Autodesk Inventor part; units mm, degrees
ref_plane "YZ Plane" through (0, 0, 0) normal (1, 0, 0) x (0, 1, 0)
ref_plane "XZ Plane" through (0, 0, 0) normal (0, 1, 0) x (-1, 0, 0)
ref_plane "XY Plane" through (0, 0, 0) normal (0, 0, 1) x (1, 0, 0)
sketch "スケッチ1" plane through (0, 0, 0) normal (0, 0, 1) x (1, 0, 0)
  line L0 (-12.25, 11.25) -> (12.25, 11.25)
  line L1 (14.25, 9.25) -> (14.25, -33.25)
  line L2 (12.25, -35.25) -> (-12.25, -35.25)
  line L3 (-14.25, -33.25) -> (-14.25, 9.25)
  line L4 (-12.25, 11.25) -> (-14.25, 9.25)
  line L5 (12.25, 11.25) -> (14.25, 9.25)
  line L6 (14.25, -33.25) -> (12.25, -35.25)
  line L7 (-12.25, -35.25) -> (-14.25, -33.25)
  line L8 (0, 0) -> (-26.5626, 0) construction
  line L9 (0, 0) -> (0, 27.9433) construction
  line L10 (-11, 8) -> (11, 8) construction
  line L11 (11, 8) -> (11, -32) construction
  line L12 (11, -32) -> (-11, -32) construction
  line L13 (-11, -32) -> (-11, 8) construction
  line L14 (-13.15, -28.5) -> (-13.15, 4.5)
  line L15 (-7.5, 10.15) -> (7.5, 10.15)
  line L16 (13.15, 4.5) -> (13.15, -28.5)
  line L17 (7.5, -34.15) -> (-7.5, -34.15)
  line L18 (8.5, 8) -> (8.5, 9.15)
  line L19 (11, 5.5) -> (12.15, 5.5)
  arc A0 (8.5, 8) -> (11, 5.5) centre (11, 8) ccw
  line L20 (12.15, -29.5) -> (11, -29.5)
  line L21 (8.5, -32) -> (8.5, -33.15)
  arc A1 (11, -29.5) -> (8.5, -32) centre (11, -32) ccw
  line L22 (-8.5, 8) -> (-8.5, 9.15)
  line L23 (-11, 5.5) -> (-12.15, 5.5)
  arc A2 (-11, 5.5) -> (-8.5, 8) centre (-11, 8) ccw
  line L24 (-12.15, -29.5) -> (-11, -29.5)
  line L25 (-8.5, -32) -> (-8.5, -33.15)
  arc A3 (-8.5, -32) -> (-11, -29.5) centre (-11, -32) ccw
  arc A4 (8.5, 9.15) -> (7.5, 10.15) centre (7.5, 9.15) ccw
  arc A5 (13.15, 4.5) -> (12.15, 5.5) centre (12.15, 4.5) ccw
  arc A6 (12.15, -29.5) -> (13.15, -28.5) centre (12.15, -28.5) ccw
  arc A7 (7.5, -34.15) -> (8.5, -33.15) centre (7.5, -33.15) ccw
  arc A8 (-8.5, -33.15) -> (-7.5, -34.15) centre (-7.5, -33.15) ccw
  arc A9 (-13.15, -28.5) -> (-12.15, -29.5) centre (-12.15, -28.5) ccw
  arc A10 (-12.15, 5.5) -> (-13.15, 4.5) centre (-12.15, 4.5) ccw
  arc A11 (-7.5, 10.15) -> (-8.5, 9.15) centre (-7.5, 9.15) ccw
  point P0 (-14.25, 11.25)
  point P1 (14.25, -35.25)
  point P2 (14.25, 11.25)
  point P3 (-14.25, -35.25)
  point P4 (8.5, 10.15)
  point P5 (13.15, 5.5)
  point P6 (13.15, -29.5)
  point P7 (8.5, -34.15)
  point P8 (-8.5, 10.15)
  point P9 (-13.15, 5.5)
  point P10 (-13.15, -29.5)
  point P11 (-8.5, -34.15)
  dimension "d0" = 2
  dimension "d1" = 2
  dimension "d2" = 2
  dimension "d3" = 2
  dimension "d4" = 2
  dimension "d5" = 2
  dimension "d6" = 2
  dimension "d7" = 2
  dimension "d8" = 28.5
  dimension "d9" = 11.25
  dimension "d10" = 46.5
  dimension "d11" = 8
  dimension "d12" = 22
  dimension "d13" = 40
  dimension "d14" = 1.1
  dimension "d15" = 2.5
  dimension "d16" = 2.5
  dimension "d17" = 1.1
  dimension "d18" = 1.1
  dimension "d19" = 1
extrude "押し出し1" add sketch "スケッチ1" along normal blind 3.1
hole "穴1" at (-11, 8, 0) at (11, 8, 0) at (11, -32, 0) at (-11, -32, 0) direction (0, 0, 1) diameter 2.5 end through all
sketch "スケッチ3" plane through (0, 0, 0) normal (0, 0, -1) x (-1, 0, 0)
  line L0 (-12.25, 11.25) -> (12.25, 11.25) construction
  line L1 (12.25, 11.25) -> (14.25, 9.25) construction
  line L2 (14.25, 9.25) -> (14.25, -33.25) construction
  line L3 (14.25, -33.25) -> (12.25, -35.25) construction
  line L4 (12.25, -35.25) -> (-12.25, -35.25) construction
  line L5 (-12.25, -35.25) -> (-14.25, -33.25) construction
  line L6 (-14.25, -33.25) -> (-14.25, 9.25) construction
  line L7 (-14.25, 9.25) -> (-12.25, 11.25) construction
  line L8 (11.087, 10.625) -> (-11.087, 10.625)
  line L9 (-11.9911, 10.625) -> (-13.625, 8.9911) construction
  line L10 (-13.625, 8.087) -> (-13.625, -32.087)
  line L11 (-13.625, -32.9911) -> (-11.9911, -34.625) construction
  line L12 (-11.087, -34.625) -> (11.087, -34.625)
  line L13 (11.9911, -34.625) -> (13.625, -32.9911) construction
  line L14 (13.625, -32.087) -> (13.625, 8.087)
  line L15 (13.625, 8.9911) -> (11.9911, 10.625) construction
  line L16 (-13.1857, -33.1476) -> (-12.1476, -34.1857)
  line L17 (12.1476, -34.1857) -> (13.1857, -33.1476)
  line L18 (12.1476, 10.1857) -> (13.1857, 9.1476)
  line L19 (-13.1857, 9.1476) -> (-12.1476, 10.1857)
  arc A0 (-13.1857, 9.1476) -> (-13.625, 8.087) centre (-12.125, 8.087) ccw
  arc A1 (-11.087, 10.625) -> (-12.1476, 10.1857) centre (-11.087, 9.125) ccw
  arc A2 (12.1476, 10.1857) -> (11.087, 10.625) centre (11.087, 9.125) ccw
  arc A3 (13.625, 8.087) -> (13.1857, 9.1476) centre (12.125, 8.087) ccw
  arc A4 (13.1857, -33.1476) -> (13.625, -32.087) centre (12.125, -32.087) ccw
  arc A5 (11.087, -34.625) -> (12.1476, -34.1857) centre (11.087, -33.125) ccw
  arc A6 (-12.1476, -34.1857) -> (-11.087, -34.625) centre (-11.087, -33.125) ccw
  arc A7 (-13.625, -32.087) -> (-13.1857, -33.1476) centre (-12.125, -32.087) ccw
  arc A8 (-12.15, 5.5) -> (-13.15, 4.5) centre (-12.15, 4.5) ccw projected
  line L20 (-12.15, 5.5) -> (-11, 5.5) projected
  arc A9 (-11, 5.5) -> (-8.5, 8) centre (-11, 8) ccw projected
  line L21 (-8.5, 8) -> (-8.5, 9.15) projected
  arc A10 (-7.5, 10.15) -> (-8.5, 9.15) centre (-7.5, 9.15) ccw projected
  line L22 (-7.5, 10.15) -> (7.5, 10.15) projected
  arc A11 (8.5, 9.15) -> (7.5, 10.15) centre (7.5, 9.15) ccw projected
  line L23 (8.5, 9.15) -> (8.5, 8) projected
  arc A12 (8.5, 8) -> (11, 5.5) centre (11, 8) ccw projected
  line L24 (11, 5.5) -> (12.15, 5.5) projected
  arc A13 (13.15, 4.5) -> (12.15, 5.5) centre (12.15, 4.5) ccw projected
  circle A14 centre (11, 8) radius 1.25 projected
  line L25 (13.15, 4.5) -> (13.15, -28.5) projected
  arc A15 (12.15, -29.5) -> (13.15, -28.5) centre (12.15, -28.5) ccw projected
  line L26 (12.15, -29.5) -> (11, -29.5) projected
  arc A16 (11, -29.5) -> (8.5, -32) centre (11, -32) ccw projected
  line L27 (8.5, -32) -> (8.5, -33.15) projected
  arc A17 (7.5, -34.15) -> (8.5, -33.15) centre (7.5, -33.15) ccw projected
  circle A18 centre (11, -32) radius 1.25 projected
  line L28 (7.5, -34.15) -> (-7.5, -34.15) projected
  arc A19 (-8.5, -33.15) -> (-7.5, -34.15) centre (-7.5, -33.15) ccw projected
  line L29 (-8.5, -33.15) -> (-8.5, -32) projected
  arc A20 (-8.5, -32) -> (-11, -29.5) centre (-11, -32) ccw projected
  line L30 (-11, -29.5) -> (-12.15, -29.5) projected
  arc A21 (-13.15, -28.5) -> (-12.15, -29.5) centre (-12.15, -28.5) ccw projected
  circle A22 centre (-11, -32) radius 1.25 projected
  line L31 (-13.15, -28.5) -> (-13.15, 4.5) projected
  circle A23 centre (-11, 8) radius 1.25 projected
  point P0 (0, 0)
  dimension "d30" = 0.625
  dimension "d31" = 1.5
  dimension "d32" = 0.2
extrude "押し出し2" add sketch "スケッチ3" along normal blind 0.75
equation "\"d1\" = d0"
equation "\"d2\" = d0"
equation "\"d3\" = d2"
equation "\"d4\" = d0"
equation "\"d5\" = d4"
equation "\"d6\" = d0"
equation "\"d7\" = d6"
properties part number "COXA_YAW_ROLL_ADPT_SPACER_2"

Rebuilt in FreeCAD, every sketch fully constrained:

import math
import FreeCAD as App
import Part
import Sketcher

doc = App.newDocument("Part")
params = doc.addObject("Spreadsheet::Sheet", "Params")
for row, (alias, value) in enumerate([
    ("sketch1_radius", "1 mm"),
    ("sketch1_radius2", "2.5 mm"),
    ("pad1_length", "3.1 mm"),
    ("sketch2_diameter", "2.5 mm"),
    ("hole_diameter", "2.5 mm"),
    ("sketch3_radius", "1.5 mm"),
    ("sketch3_radius2", "1 mm"),
    ("sketch3_diameter", "2.5 mm"),
    ("sketch3_radius3", "2.5 mm"),
    ("sketch3_width", "15 mm"),
    ("pad2_length", "0.75 mm"),
], start=1):
    params.set(f"A{row}", alias)
    params.set(f"B{row}", "=" + value)
    params.setAlias(f"B{row}", alias)

body = doc.addObject("PartDesign::Body", "Body")

# Sketch on XY plane
sketch1 = doc.addObject("Sketcher::SketchObject", "Sketch")
body.addObject(sketch1)
sketch1.AttachmentSupport = (doc.XY_Plane, [""])
sketch1.MapMode = "FlatFace"
sketch1.addGeometry(Part.LineSegment(App.Vector(12.2, 11.2, 0), App.Vector(-12.2, 11.2, 0)), False)
sketch1.addGeometry(Part.LineSegment(App.Vector(-12.2, 11.2, 0), App.Vector(-14.2, 9.2, 0)), False)
sketch1.addGeometry(Part.LineSegment(App.Vector(-14.2, 9.2, 0), App.Vector(-14.2, -33.2, 0)), False)
sketch1.addGeometry(Part.LineSegment(App.Vector(-14.2, -33.2, 0), App.Vector(-12.2, -35.2, 0)), False)
sketch1.addGeometry(Part.LineSegment(App.Vector(-12.2, -35.2, 0), App.Vector(12.2, -35.2, 0)), False)
sketch1.addGeometry(Part.LineSegment(App.Vector(12.2, -35.2, 0), App.Vector(14.2, -33.2, 0)), False)
sketch1.addGeometry(Part.LineSegment(App.Vector(14.2, -33.2, 0), App.Vector(14.2, 9.2, 0)), False)
sketch1.addGeometry(Part.LineSegment(App.Vector(14.2, 9.2, 0), App.Vector(12.2, 11.2, 0)), False)
sketch1.addGeometry(Part.ArcOfCircle(Part.Circle(App.Vector(-12.2, -28.5, 0), App.Vector(0, 0, 1), 1), math.radians(180), math.radians(270)), False)
sketch1.addGeometry(Part.LineSegment(App.Vector(-13.2, -28.5, 0), App.Vector(-13.2, 4.5, 0)), False)
sketch1.addGeometry(Part.ArcOfCircle(Part.Circle(App.Vector(-12.2, 4.5, 0), App.Vector(0, 0, 1), 1), math.radians(90), math.radians(180)), False)
sketch1.addGeometry(Part.LineSegment(App.Vector(-12.2, 5.5, 0), App.Vector(-11, 5.5, 0)), False)
sketch1.addGeometry(Part.ArcOfCircle(Part.Circle(App.Vector(-11, 8, 0), App.Vector(0, 0, 1), 2.5), math.radians(-90), math.radians(0)), False)
sketch1.addGeometry(Part.LineSegment(App.Vector(-8.5, 8, 0), App.Vector(-8.5, 9.2, 0)), False)
sketch1.addGeometry(Part.ArcOfCircle(Part.Circle(App.Vector(-7.5, 9.2, 0), App.Vector(0, 0, 1), 1), math.radians(90), math.radians(180)), False)
sketch1.addGeometry(Part.LineSegment(App.Vector(-7.5, 10.2, 0), App.Vector(7.5, 10.2, 0)), False)
sketch1.addGeometry(Part.ArcOfCircle(Part.Circle(App.Vector(7.5, 9.2, 0), App.Vector(0, 0, 1), 1), math.radians(0), math.radians(90)), False)
sketch1.addGeometry(Part.LineSegment(App.Vector(8.5, 9.2, 0), App.Vector(8.5, 8, 0)), False)
sketch1.addGeometry(Part.ArcOfCircle(Part.Circle(App.Vector(11, 8, 0), App.Vector(0, 0, 1), 2.5), math.radians(180), math.radians(270)), False)
sketch1.addGeometry(Part.LineSegment(App.Vector(11, 5.5, 0), App.Vector(12.2, 5.5, 0)), False)
sketch1.addGeometry(Part.ArcOfCircle(Part.Circle(App.Vector(12.2, 4.5, 0), App.Vector(0, 0, 1), 1), math.radians(0), math.radians(90)), False)
sketch1.addGeometry(Part.LineSegment(App.Vector(13.2, 4.5, 0), App.Vector(13.2, -28.5, 0)), False)
sketch1.addGeometry(Part.ArcOfCircle(Part.Circle(App.Vector(12.2, -28.5, 0), App.Vector(0, 0, 1), 1), math.radians(-90), math.radians(0)), False)
sketch1.addGeometry(Part.LineSegment(App.Vector(12.2, -29.5, 0), App.Vector(11, -29.5, 0)), False)
sketch1.addGeometry(Part.ArcOfCircle(Part.Circle(App.Vector(11, -32, 0), App.Vector(0, 0, 1), 2.5), math.radians(90), math.radians(180)), False)
sketch1.addGeometry(Part.LineSegment(App.Vector(8.5, -32, 0), App.Vector(8.5, -33.1, 0)), False)
sketch1.addGeometry(Part.ArcOfCircle(Part.Circle(App.Vector(7.5, -33.1, 0), App.Vector(0, 0, 1), 1), math.radians(-90), math.radians(0)), False)
sketch1.addGeometry(Part.LineSegment(App.Vector(7.5, -34.1, 0), App.Vector(-7.5, -34.1, 0)), False)
sketch1.addGeometry(Part.ArcOfCircle(Part.Circle(App.Vector(-7.5, -33.1, 0), App.Vector(0, 0, 1), 1), math.radians(180), math.radians(270)), False)
sketch1.addGeometry(Part.LineSegment(App.Vector(-8.5, -33.1, 0), App.Vector(-8.5, -32, 0)), False)
sketch1.addGeometry(Part.ArcOfCircle(Part.Circle(App.Vector(-11, -32, 0), App.Vector(0, 0, 1), 2.5), math.radians(0), math.radians(90)), False)
sketch1.addGeometry(Part.LineSegment(App.Vector(-11, -29.5, 0), App.Vector(-12.2, -29.5, 0)), False)
sketch1.addConstraint(Sketcher.Constraint("Coincident", 0, 2, 1, 1))
sketch1.addConstraint(Sketcher.Constraint("Coincident", 1, 2, 2, 1))
sketch1.addConstraint(Sketcher.Constraint("Coincident", 2, 2, 3, 1))
sketch1.addConstraint(Sketcher.Constraint("Coincident", 3, 2, 4, 1))
sketch1.addConstraint(Sketcher.Constraint("Coincident", 4, 2, 5, 1))
sketch1.addConstraint(Sketcher.Constraint("Coincident", 5, 2, 6, 1))
sketch1.addConstraint(Sketcher.Constraint("Coincident", 6, 2, 7, 1))
sketch1.addConstraint(Sketcher.Constraint("Coincident", 7, 2, 0, 1))
sketch1.addConstraint(Sketcher.Constraint("Tangent", 8, 1, 9, 1))
sketch1.addConstraint(Sketcher.Constraint("Tangent", 9, 2, 10, 2))
sketch1.addConstraint(Sketcher.Constraint("Tangent", 10, 1, 11, 1))
sketch1.addConstraint(Sketcher.Constraint("Tangent", 11, 2, 12, 1))
sketch1.addConstraint(Sketcher.Constraint("Tangent", 12, 2, 13, 1))
sketch1.addConstraint(Sketcher.Constraint("Tangent", 13, 2, 14, 2))
sketch1.addConstraint(Sketcher.Constraint("Tangent", 14, 1, 15, 1))
sketch1.addConstraint(Sketcher.Constraint("Tangent", 15, 2, 16, 2))
sketch1.addConstraint(Sketcher.Constraint("Tangent", 16, 1, 17, 1))
sketch1.addConstraint(Sketcher.Constraint("Tangent", 17, 2, 18, 1))
sketch1.addConstraint(Sketcher.Constraint("Tangent", 18, 2, 19, 1))
sketch1.addConstraint(Sketcher.Constraint("Tangent", 19, 2, 20, 2))
sketch1.addConstraint(Sketcher.Constraint("Tangent", 20, 1, 21, 1))
sketch1.addConstraint(Sketcher.Constraint("Tangent", 21, 2, 22, 2))
sketch1.addConstraint(Sketcher.Constraint("Tangent", 22, 1, 23, 1))
sketch1.addConstraint(Sketcher.Constraint("Tangent", 23, 2, 24, 1))
sketch1.addConstraint(Sketcher.Constraint("Tangent", 24, 2, 25, 1))
sketch1.addConstraint(Sketcher.Constraint("Tangent", 25, 2, 26, 2))
sketch1.addConstraint(Sketcher.Constraint("Tangent", 26, 1, 27, 1))
sketch1.addConstraint(Sketcher.Constraint("Tangent", 27, 2, 28, 2))
sketch1.addConstraint(Sketcher.Constraint("Tangent", 28, 1, 29, 1))
sketch1.addConstraint(Sketcher.Constraint("Tangent", 29, 2, 30, 1))
sketch1.addConstraint(Sketcher.Constraint("Tangent", 30, 2, 31, 1))
sketch1.addConstraint(Sketcher.Constraint("Tangent", 31, 2, 8, 2))
sketch1.addConstraint(Sketcher.Constraint("Horizontal", 0))
sketch1.addConstraint(Sketcher.Constraint("Vertical", 2))
sketch1.addConstraint(Sketcher.Constraint("Horizontal", 4))
sketch1.addConstraint(Sketcher.Constraint("Vertical", 6))
sketch1.addConstraint(Sketcher.Constraint("Vertical", 9))
sketch1.addConstraint(Sketcher.Constraint("Horizontal", 11))
sketch1.addConstraint(Sketcher.Constraint("Vertical", 13))
sketch1.addConstraint(Sketcher.Constraint("Horizontal", 15))
sketch1.addConstraint(Sketcher.Constraint("Vertical", 17))
sketch1.addConstraint(Sketcher.Constraint("Horizontal", 19))
sketch1.addConstraint(Sketcher.Constraint("Vertical", 21))
sketch1.addConstraint(Sketcher.Constraint("Horizontal", 23))
sketch1.addConstraint(Sketcher.Constraint("Vertical", 25))
sketch1.addConstraint(Sketcher.Constraint("Horizontal", 27))
sketch1.addConstraint(Sketcher.Constraint("Vertical", 29))
sketch1.addConstraint(Sketcher.Constraint("Horizontal", 31))
sketch1.addConstraint(Sketcher.Constraint("Equal", 8, 10))
sketch1.addConstraint(Sketcher.Constraint("Equal", 10, 14))
sketch1.addConstraint(Sketcher.Constraint("Equal", 14, 16))
sketch1.addConstraint(Sketcher.Constraint("Equal", 12, 18))
sketch1.addConstraint(Sketcher.Constraint("Equal", 16, 20))
sketch1.addConstraint(Sketcher.Constraint("Equal", 20, 22))
sketch1.addConstraint(Sketcher.Constraint("Equal", 18, 24))
sketch1.addConstraint(Sketcher.Constraint("Equal", 22, 26))
sketch1.addConstraint(Sketcher.Constraint("Equal", 26, 28))
sketch1.addConstraint(Sketcher.Constraint("Equal", 24, 30))
sketch1.addConstraint(Sketcher.Constraint("Symmetric", 12, 3, 18, 3, -2))
sketch1.addConstraint(Sketcher.Constraint("Symmetric", 8, 3, 22, 3, -2))
sketch1.addConstraint(Sketcher.Constraint("Symmetric", 2, 2, 5, 2, -2))
sketch1.addConstraint(Sketcher.Constraint("Perpendicular", 1, 3))
sketch1.addConstraint(Sketcher.Constraint("Perpendicular", 3, 5))
sketch1.addConstraint(Sketcher.Constraint("Perpendicular", 5, 7))
sketch1.addConstraint(Sketcher.Constraint("Horizontal", 1, 2, 6, 2))
sketch1.addConstraint(Sketcher.Constraint("Vertical", 18, 3, 24, 3))
sketch1.addConstraint(Sketcher.Constraint("Vertical", 14, 3, 28, 3))
sketch1.addConstraint(Sketcher.Constraint("Vertical", 0, 2, 3, 2))
sketch1.addConstraint(Sketcher.Constraint("Vertical", 4, 2, 7, 2))
sketch1.addConstraint(Sketcher.Constraint("Equal", 31, 13))
sketch1.addConstraint(Sketcher.Constraint("Equal", 17, 25))
sketch1.addConstraint(Sketcher.Constraint("Radius", 8, 1.0))
sketch1.addConstraint(Sketcher.Constraint("Radius", 12, 2.5))
sketch1.addConstraint(Sketcher.Constraint("DistanceY", -1, 1, 12, 3, 8.0))
sketch1.addConstraint(Sketcher.Constraint("DistanceX", 12, 3, 18, 3, 22.0))
sketch1.addConstraint(Sketcher.Constraint("DistanceY", 24, 3, 18, 3, 40.0))
sketch1.addConstraint(Sketcher.Constraint("DistanceX", 1, 2, 0, 2, 2.0))
sketch1.addConstraint(Sketcher.Constraint("DistanceX", 2, 2, 8, 1, 1.1))
sketch1.addConstraint(Sketcher.Constraint("DistanceY", 14, 1, 0, 2, 1.1))
sketch1.addConstraint(Sketcher.Constraint("DistanceY", 4, 2, 26, 1, 1.1))
sketch1.addConstraint(Sketcher.Constraint("DistanceY", -1, 1, 0, 2, 11.25))
sketch1.setExpression("Constraints[71]", "Params.sketch1_radius")
sketch1.setExpression("Constraints[72]", "Params.sketch1_radius2")
pad1 = doc.addObject("PartDesign::Pad", "Pad")
body.addObject(pad1)
pad1.Profile = sketch1
pad1.setExpression("Length", "Params.pad1_length")

# Sketch on XY plane
sketch2 = doc.addObject("Sketcher::SketchObject", "Sketch001")
body.addObject(sketch2)
sketch2.AttachmentSupport = (doc.XY_Plane, [""])
sketch2.MapMode = "FlatFace"
sketch2.addGeometry(Part.Circle(App.Vector(-11, 8, 0), App.Vector(0, 0, 1), 1.2), False)
sketch2.addGeometry(Part.Circle(App.Vector(11, 8, 0), App.Vector(0, 0, 1), 1.2), False)
sketch2.addGeometry(Part.Circle(App.Vector(11, -32, 0), App.Vector(0, 0, 1), 1.2), False)
sketch2.addGeometry(Part.Circle(App.Vector(-11, -32, 0), App.Vector(0, 0, 1), 1.2), False)
sketch2.addConstraint(Sketcher.Constraint("Equal", 0, 1))
sketch2.addConstraint(Sketcher.Constraint("Equal", 1, 2))
sketch2.addConstraint(Sketcher.Constraint("Equal", 2, 3))
sketch2.addConstraint(Sketcher.Constraint("Symmetric", 0, 3, 1, 3, -2))
sketch2.addConstraint(Sketcher.Constraint("Symmetric", 2, 3, 3, 3, -2))
sketch2.addConstraint(Sketcher.Constraint("Vertical", 1, 3, 2, 3))
sketch2.addConstraint(Sketcher.Constraint("Diameter", 0, 2.5))
sketch2.addConstraint(Sketcher.Constraint("DistanceX", 0, 3, -1, 1, 11.0))
sketch2.addConstraint(Sketcher.Constraint("DistanceY", -1, 1, 0, 3, 8.0))
sketch2.addConstraint(Sketcher.Constraint("DistanceY", 2, 3, -1, 1, 32.0))
sketch2.setExpression("Constraints[6]", "Params.sketch2_diameter")
doc.recompute()
hole = doc.addObject("PartDesign::Hole", "Hole")
body.addObject(hole)
hole.Profile = sketch2
hole.ThreadType = "None"
hole.setExpression("Diameter", "Params.hole_diameter")
hole.DepthType = "ThroughAll"
hole.Reversed = True

# Sketch on XY plane
sketch3 = doc.addObject("Sketcher::SketchObject", "Sketch002")
body.addObject(sketch3)
sketch3.AttachmentSupport = (doc.XY_Plane, [""])
sketch3.MapMode = "FlatFace"
sketch3.addGeometry(Part.ArcOfCircle(Part.Circle(App.Vector(-11.1, 9.1, 0), App.Vector(0, 0, 1), 1.5), math.radians(90), math.radians(135)), False)
sketch3.addGeometry(Part.LineSegment(App.Vector(-11.1, 10.6, 0), App.Vector(11.1, 10.6, 0)), False)
sketch3.addGeometry(Part.ArcOfCircle(Part.Circle(App.Vector(11.1, 9.1, 0), App.Vector(0, 0, 1), 1.5), math.radians(45), math.radians(90)), False)
sketch3.addGeometry(Part.LineSegment(App.Vector(12.1, 10.2, 0), App.Vector(13.2, 9.1, 0)), False)
sketch3.addGeometry(Part.ArcOfCircle(Part.Circle(App.Vector(12.1, 8.1, 0), App.Vector(0, 0, 1), 1.5), math.radians(0), math.radians(45)), False)
sketch3.addGeometry(Part.LineSegment(App.Vector(13.6, 8.1, 0), App.Vector(13.6, -32.1, 0)), False)
sketch3.addGeometry(Part.ArcOfCircle(Part.Circle(App.Vector(12.1, -32.1, 0), App.Vector(0, 0, 1), 1.5), math.radians(-45), math.radians(0)), False)
sketch3.addGeometry(Part.LineSegment(App.Vector(13.2, -33.1, 0), App.Vector(12.1, -34.2, 0)), False)
sketch3.addGeometry(Part.ArcOfCircle(Part.Circle(App.Vector(11.1, -33.1, 0), App.Vector(0, 0, 1), 1.5), math.radians(-90), math.radians(-45)), False)
sketch3.addGeometry(Part.LineSegment(App.Vector(11.1, -34.6, 0), App.Vector(-11.1, -34.6, 0)), False)
sketch3.addGeometry(Part.ArcOfCircle(Part.Circle(App.Vector(-11.1, -33.1, 0), App.Vector(0, 0, 1), 1.5), math.radians(-135), math.radians(-90)), False)
sketch3.addGeometry(Part.LineSegment(App.Vector(-12.1, -34.2, 0), App.Vector(-13.2, -33.1, 0)), False)
sketch3.addGeometry(Part.ArcOfCircle(Part.Circle(App.Vector(-12.1, -32.1, 0), App.Vector(0, 0, 1), 1.5), math.radians(180), math.radians(225)), False)
sketch3.addGeometry(Part.LineSegment(App.Vector(-13.6, -32.1, 0), App.Vector(-13.6, 8.1, 0)), False)
sketch3.addGeometry(Part.ArcOfCircle(Part.Circle(App.Vector(-12.1, 8.1, 0), App.Vector(0, 0, 1), 1.5), math.radians(135), math.radians(180)), False)
sketch3.addGeometry(Part.LineSegment(App.Vector(-13.2, 9.1, 0), App.Vector(-12.1, 10.2, 0)), False)
sketch3.addGeometry(Part.Circle(App.Vector(11, -32, 0), App.Vector(0, 0, 1), 1.2), False)
sketch3.addGeometry(Part.Circle(App.Vector(-11, -32, 0), App.Vector(0, 0, 1), 1.2), False)
sketch3.addGeometry(Part.Circle(App.Vector(11, 8, 0), App.Vector(0, 0, 1), 1.2), False)
sketch3.addGeometry(Part.ArcOfCircle(Part.Circle(App.Vector(12.2, 4.5, 0), App.Vector(0, 0, 1), 1), math.radians(0), math.radians(90)), False)
sketch3.addGeometry(Part.LineSegment(App.Vector(12.2, 5.5, 0), App.Vector(11, 5.5, 0)), False)
sketch3.addGeometry(Part.ArcOfCircle(Part.Circle(App.Vector(11, 8, 0), App.Vector(0, 0, 1), 2.5), math.radians(180), math.radians(270)), False)
sketch3.addGeometry(Part.LineSegment(App.Vector(8.5, 8, 0), App.Vector(8.5, 9.2, 0)), False)
sketch3.addGeometry(Part.ArcOfCircle(Part.Circle(App.Vector(7.5, 9.2, 0), App.Vector(0, 0, 1), 1), math.radians(0), math.radians(90)), False)
sketch3.addGeometry(Part.LineSegment(App.Vector(7.5, 10.2, 0), App.Vector(-7.5, 10.2, 0)), False)
sketch3.addGeometry(Part.ArcOfCircle(Part.Circle(App.Vector(-7.5, 9.2, 0), App.Vector(0, 0, 1), 1), math.radians(90), math.radians(180)), False)
sketch3.addGeometry(Part.LineSegment(App.Vector(-8.5, 9.2, 0), App.Vector(-8.5, 8, 0)), False)
sketch3.addGeometry(Part.ArcOfCircle(Part.Circle(App.Vector(-11, 8, 0), App.Vector(0, 0, 1), 2.5), math.radians(-90), math.radians(0)), False)
sketch3.addGeometry(Part.LineSegment(App.Vector(-11, 5.5, 0), App.Vector(-12.2, 5.5, 0)), False)
sketch3.addGeometry(Part.ArcOfCircle(Part.Circle(App.Vector(-12.2, 4.5, 0), App.Vector(0, 0, 1), 1), math.radians(90), math.radians(180)), False)
sketch3.addGeometry(Part.LineSegment(App.Vector(-13.2, 4.5, 0), App.Vector(-13.2, -28.5, 0)), False)
sketch3.addGeometry(Part.ArcOfCircle(Part.Circle(App.Vector(-12.2, -28.5, 0), App.Vector(0, 0, 1), 1), math.radians(180), math.radians(270)), False)
sketch3.addGeometry(Part.LineSegment(App.Vector(-12.2, -29.5, 0), App.Vector(-11, -29.5, 0)), False)
sketch3.addGeometry(Part.ArcOfCircle(Part.Circle(App.Vector(-11, -32, 0), App.Vector(0, 0, 1), 2.5), math.radians(0), math.radians(90)), False)
sketch3.addGeometry(Part.LineSegment(App.Vector(-8.5, -32, 0), App.Vector(-8.5, -33.1, 0)), False)
sketch3.addGeometry(Part.ArcOfCircle(Part.Circle(App.Vector(-7.5, -33.1, 0), App.Vector(0, 0, 1), 1), math.radians(180), math.radians(270)), False)
sketch3.addGeometry(Part.LineSegment(App.Vector(-7.5, -34.1, 0), App.Vector(7.5, -34.1, 0)), False)
sketch3.addGeometry(Part.ArcOfCircle(Part.Circle(App.Vector(7.5, -33.1, 0), App.Vector(0, 0, 1), 1), math.radians(-90), math.radians(0)), False)
sketch3.addGeometry(Part.LineSegment(App.Vector(8.5, -33.1, 0), App.Vector(8.5, -32, 0)), False)
sketch3.addGeometry(Part.ArcOfCircle(Part.Circle(App.Vector(11, -32, 0), App.Vector(0, 0, 1), 2.5), math.radians(90), math.radians(180)), False)
sketch3.addGeometry(Part.LineSegment(App.Vector(11, -29.5, 0), App.Vector(12.2, -29.5, 0)), False)
sketch3.addGeometry(Part.ArcOfCircle(Part.Circle(App.Vector(12.2, -28.5, 0), App.Vector(0, 0, 1), 1), math.radians(-90), math.radians(0)), False)
sketch3.addGeometry(Part.LineSegment(App.Vector(13.2, -28.5, 0), App.Vector(13.2, 4.5, 0)), False)
sketch3.addGeometry(Part.Circle(App.Vector(-11, 8, 0), App.Vector(0, 0, 1), 1.2), False)
sketch3.addConstraint(Sketcher.Constraint("Tangent", 0, 1, 1, 1))
sketch3.addConstraint(Sketcher.Constraint("Tangent", 1, 2, 2, 2))
sketch3.addConstraint(Sketcher.Constraint("Tangent", 2, 1, 3, 1))
sketch3.addConstraint(Sketcher.Constraint("Tangent", 3, 2, 4, 2))
sketch3.addConstraint(Sketcher.Constraint("Tangent", 4, 1, 5, 1))
sketch3.addConstraint(Sketcher.Constraint("Tangent", 5, 2, 6, 2))
sketch3.addConstraint(Sketcher.Constraint("Tangent", 6, 1, 7, 1))
sketch3.addConstraint(Sketcher.Constraint("Tangent", 7, 2, 8, 2))
sketch3.addConstraint(Sketcher.Constraint("Tangent", 8, 1, 9, 1))
sketch3.addConstraint(Sketcher.Constraint("Tangent", 9, 2, 10, 2))
sketch3.addConstraint(Sketcher.Constraint("Tangent", 10, 1, 11, 1))
sketch3.addConstraint(Sketcher.Constraint("Tangent", 11, 2, 12, 2))
sketch3.addConstraint(Sketcher.Constraint("Tangent", 12, 1, 13, 1))
sketch3.addConstraint(Sketcher.Constraint("Tangent", 13, 2, 14, 2))
sketch3.addConstraint(Sketcher.Constraint("Tangent", 14, 1, 15, 1))
sketch3.addConstraint(Sketcher.Constraint("Tangent", 15, 2, 0, 2))
sketch3.addConstraint(Sketcher.Constraint("Tangent", 19, 2, 20, 1))
sketch3.addConstraint(Sketcher.Constraint("Tangent", 20, 2, 21, 2))
sketch3.addConstraint(Sketcher.Constraint("Tangent", 21, 1, 22, 1))
sketch3.addConstraint(Sketcher.Constraint("Tangent", 22, 2, 23, 1))
sketch3.addConstraint(Sketcher.Constraint("Tangent", 23, 2, 24, 1))
sketch3.addConstraint(Sketcher.Constraint("Tangent", 24, 2, 25, 1))
sketch3.addConstraint(Sketcher.Constraint("Tangent", 25, 2, 26, 1))
sketch3.addConstraint(Sketcher.Constraint("Tangent", 26, 2, 27, 2))
sketch3.addConstraint(Sketcher.Constraint("Tangent", 27, 1, 28, 1))
sketch3.addConstraint(Sketcher.Constraint("Tangent", 28, 2, 29, 1))
sketch3.addConstraint(Sketcher.Constraint("Tangent", 29, 2, 30, 1))
sketch3.addConstraint(Sketcher.Constraint("Tangent", 30, 2, 31, 1))
sketch3.addConstraint(Sketcher.Constraint("Tangent", 31, 2, 32, 1))
sketch3.addConstraint(Sketcher.Constraint("Tangent", 32, 2, 33, 2))
sketch3.addConstraint(Sketcher.Constraint("Tangent", 33, 1, 34, 1))
sketch3.addConstraint(Sketcher.Constraint("Tangent", 34, 2, 35, 1))
sketch3.addConstraint(Sketcher.Constraint("Tangent", 35, 2, 36, 1))
sketch3.addConstraint(Sketcher.Constraint("Tangent", 36, 2, 37, 1))
sketch3.addConstraint(Sketcher.Constraint("Tangent", 37, 2, 38, 1))
sketch3.addConstraint(Sketcher.Constraint("Tangent", 38, 2, 39, 2))
sketch3.addConstraint(Sketcher.Constraint("Tangent", 39, 1, 40, 1))
sketch3.addConstraint(Sketcher.Constraint("Tangent", 40, 2, 41, 1))
sketch3.addConstraint(Sketcher.Constraint("Tangent", 41, 2, 42, 1))
sketch3.addConstraint(Sketcher.Constraint("Tangent", 42, 2, 19, 1))
sketch3.addConstraint(Sketcher.Constraint("Horizontal", 1))
sketch3.addConstraint(Sketcher.Constraint("Vertical", 5))
sketch3.addConstraint(Sketcher.Constraint("Horizontal", 9))
sketch3.addConstraint(Sketcher.Constraint("Vertical", 13))
sketch3.addConstraint(Sketcher.Constraint("Horizontal", 20))
sketch3.addConstraint(Sketcher.Constraint("Vertical", 22))
sketch3.addConstraint(Sketcher.Constraint("Horizontal", 24))
sketch3.addConstraint(Sketcher.Constraint("Vertical", 26))
sketch3.addConstraint(Sketcher.Constraint("Horizontal", 28))
sketch3.addConstraint(Sketcher.Constraint("Vertical", 30))
sketch3.addConstraint(Sketcher.Constraint("Horizontal", 32))
sketch3.addConstraint(Sketcher.Constraint("Vertical", 34))
sketch3.addConstraint(Sketcher.Constraint("Horizontal", 36))
sketch3.addConstraint(Sketcher.Constraint("Vertical", 38))
sketch3.addConstraint(Sketcher.Constraint("Horizontal", 40))
sketch3.addConstraint(Sketcher.Constraint("Vertical", 42))
sketch3.addConstraint(Sketcher.Constraint("Coincident", 21, 3, 18, 3))
sketch3.addConstraint(Sketcher.Constraint("Coincident", 33, 3, 17, 3))
sketch3.addConstraint(Sketcher.Constraint("Coincident", 39, 3, 16, 3))
sketch3.addConstraint(Sketcher.Constraint("Coincident", 43, 3, 27, 3))
sketch3.addConstraint(Sketcher.Constraint("Equal", 0, 2))
sketch3.addConstraint(Sketcher.Constraint("Equal", 2, 4))
sketch3.addConstraint(Sketcher.Constraint("Equal", 4, 6))
sketch3.addConstraint(Sketcher.Constraint("Equal", 6, 8))
sketch3.addConstraint(Sketcher.Constraint("Equal", 8, 10))
sketch3.addConstraint(Sketcher.Constraint("Equal", 10, 12))
sketch3.addConstraint(Sketcher.Constraint("Equal", 12, 14))
sketch3.addConstraint(Sketcher.Constraint("Equal", 16, 17))
sketch3.addConstraint(Sketcher.Constraint("Equal", 17, 18))
sketch3.addConstraint(Sketcher.Constraint("Equal", 19, 23))
sketch3.addConstraint(Sketcher.Constraint("Equal", 23, 25))
sketch3.addConstraint(Sketcher.Constraint("Equal", 21, 27))
sketch3.addConstraint(Sketcher.Constraint("Equal", 25, 29))
sketch3.addConstraint(Sketcher.Constraint("Equal", 29, 31))
sketch3.addConstraint(Sketcher.Constraint("Equal", 27, 33))
sketch3.addConstraint(Sketcher.Constraint("Equal", 31, 35))
sketch3.addConstraint(Sketcher.Constraint("Equal", 35, 37))
sketch3.addConstraint(Sketcher.Constraint("Equal", 33, 39))
sketch3.addConstraint(Sketcher.Constraint("Equal", 37, 41))
sketch3.addConstraint(Sketcher.Constraint("Equal", 18, 43))
sketch3.addConstraint(Sketcher.Constraint("Symmetric", 6, 3, 12, 3, -2))
sketch3.addConstraint(Sketcher.Constraint("Symmetric", 16, 3, 17, 3, -2))
sketch3.addConstraint(Sketcher.Constraint("Symmetric", 18, 3, 27, 3, -2))
sketch3.addConstraint(Sketcher.Constraint("Symmetric", 3, 2, 14, 1, -2))
sketch3.addConstraint(Sketcher.Constraint("Perpendicular", 3, 7))
sketch3.addConstraint(Sketcher.Constraint("Perpendicular", 7, 11))
sketch3.addConstraint(Sketcher.Constraint("Perpendicular", 11, 15))
sketch3.addConstraint(Sketcher.Constraint("Vertical", 2, 3, 8, 3))
sketch3.addConstraint(Sketcher.Constraint("Vertical", 16, 3, 18, 3))
sketch3.addConstraint(Sketcher.Constraint("Equal", 20, 28))
sketch3.addConstraint(Sketcher.Constraint("Equal", 40, 22))
sketch3.addConstraint(Sketcher.Constraint("Equal", 26, 34))
sketch3.addConstraint(Sketcher.Constraint("Radius", 0, 1.5))
sketch3.addConstraint(Sketcher.Constraint("Radius", 19, 1.0))
sketch3.addConstraint(Sketcher.Constraint("Diameter", 16, 2.5))
sketch3.addConstraint(Sketcher.Constraint("Radius", 21, 2.5))
sketch3.addConstraint(Sketcher.Constraint("DistanceX", 24, 2, 24, 1, 15.0))
sketch3.addConstraint(Sketcher.Constraint("DistanceY", 30, 2, 30, 1, 33.0))
sketch3.addConstraint(Sketcher.Constraint("DistanceY", 16, 3, -1, 1, 32.0))
sketch3.addConstraint(Sketcher.Constraint("DistanceX", 20, 2, 20, 1, 1.15))
sketch3.addConstraint(Sketcher.Constraint("DistanceX", 1, 1, 1, 2, 22.174))
sketch3.addConstraint(Sketcher.Constraint("DistanceY", 5, 2, 5, 1, 40.174))
sketch3.addConstraint(Sketcher.Constraint("Distance", 3, 1.468))
sketch3.addConstraint(Sketcher.Constraint("DistanceY", -1, 1, 0, 3, 9.125))
sketch3.setExpression("Constraints[92]", "Params.sketch3_radius")
sketch3.setExpression("Constraints[93]", "Params.sketch3_radius2")
sketch3.setExpression("Constraints[94]", "Params.sketch3_diameter")
sketch3.setExpression("Constraints[95]", "Params.sketch3_radius3")
sketch3.setExpression("Constraints[96]", "Params.sketch3_width")
pad2 = doc.addObject("PartDesign::Pad", "Pad001")
body.addObject(pad2)
pad2.Profile = sketch3
pad2.setExpression("Length", "Params.pad2_length")
pad2.Reversed = True

doc.recompute()
